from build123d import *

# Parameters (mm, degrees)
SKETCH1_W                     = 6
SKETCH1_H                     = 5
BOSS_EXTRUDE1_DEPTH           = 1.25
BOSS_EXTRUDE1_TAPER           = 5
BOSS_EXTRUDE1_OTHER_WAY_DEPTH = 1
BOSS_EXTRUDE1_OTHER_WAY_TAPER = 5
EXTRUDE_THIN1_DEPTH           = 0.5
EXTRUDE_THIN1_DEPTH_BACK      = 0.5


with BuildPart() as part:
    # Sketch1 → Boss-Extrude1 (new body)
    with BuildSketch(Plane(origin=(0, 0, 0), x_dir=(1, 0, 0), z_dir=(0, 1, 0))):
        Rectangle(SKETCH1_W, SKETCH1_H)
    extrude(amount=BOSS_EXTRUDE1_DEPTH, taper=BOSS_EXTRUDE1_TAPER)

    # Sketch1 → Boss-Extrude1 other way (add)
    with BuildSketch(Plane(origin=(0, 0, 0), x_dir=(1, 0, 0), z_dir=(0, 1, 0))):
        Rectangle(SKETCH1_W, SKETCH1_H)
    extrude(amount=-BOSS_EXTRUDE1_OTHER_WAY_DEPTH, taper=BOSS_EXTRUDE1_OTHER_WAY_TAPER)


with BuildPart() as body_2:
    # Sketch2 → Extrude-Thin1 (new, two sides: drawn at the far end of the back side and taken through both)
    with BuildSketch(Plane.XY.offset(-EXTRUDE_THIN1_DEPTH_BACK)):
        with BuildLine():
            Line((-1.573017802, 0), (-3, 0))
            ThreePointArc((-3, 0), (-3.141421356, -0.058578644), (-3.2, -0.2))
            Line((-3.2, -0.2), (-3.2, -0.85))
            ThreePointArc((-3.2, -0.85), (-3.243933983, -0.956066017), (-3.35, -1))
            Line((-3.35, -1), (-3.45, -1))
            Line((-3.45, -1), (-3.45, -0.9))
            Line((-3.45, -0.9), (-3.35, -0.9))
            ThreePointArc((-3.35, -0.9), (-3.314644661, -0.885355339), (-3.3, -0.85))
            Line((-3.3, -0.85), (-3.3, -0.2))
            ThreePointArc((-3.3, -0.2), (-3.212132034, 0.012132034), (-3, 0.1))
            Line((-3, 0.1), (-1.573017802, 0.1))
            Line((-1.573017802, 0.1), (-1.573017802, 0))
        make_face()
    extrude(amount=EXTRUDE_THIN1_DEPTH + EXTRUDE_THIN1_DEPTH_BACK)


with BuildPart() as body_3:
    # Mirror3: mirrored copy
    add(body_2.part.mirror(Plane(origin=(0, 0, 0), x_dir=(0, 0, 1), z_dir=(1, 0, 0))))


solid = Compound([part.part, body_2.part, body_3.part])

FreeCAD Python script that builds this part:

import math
import FreeCAD as App
import Part
import Sketcher
from FreeCAD import Vector
Q = App.Units.Quantity


def add_polygon(sketch, points):
    """Adds a closed chain of lines whose ends are joined by coincident constraints."""
    first, n = sketch.GeometryCount, len(points)
    for a, b in zip(points, points[1:] + points[:1]):
        sketch.addGeometry(Part.LineSegment(App.Vector(*a, 0), App.Vector(*b, 0)), False)
    for i in range(n):
        sketch.addConstraint(Sketcher.Constraint("Coincident", first + i, 2, first + (i + 1) % n, 1))

doc = App.newDocument("Part")
params = doc.addObject("Spreadsheet::Sheet", "Params")
for row, (alias, value) in enumerate([
    ("sketch1_width", "6 mm"),
    ("sketch1_height", "5 mm"),
    ("pad1_length", "1.25 mm"),
    ("pad1_taper", "-5 deg"),
    ("sketch2_width", "6 mm"),
    ("sketch2_height", "5 mm"),
    ("pad2_length", "1 mm"),
    ("pad2_taper", "-5 deg"),
    ("sketch3_radius", "0.3 mm"),
    ("sketch3_radius2", "0.2 mm"),
    ("sketch3_radius3", "0.05 mm"),
    ("pad3_length", "0.5 mm"),
    ("pad3_length2", "0.5 mm"),
], start=1):
    params.set(f"A{row}", alias)
    params.set(f"B{row}", "=" + value)
    params.setAlias(f"B{row}", alias)

body = doc.addObject("PartDesign::Body", "Body")

sketch1 = body.newObject("Sketcher::SketchObject", "Sketch")
sketch1.AttachmentSupport = (doc.getObject("XZ_Plane"), [""])
sketch1.MapMode = "FlatFace"
add_polygon(sketch1, [(-3, -2.5), (-3, 2.5), (3, 2.5), (3, -2.5)])
sketch1.addConstraint(Sketcher.Constraint("Vertical", 0))
sketch1.addConstraint(Sketcher.Constraint("Horizontal", 1))
sketch1.addConstraint(Sketcher.Constraint("Vertical", 2))
sketch1.addConstraint(Sketcher.Constraint("Horizontal", 3))
sketch1.addConstraint(Sketcher.Constraint("Symmetric", 0, 2, 2, 2, -1, 1))
sketch1.addConstraint(Sketcher.Constraint("DistanceX", 1, 1, 1, 2, Q("6 mm")))
sketch1.addConstraint(Sketcher.Constraint("DistanceY", 0, 1, 0, 2, Q("5 mm")))
sketch1.setExpression("Constraints[9]", "Params.sketch1_width")
sketch1.setExpression("Constraints[10]", "Params.sketch1_height")
pad1 = body.newObject("PartDesign::Pad", "Pad")
pad1.Profile = sketch1
pad1.setExpression("Length", "Params.pad1_length")
pad1.Reversed = True
pad1.setExpression("TaperAngle", "Params.pad1_taper")

sketch2 = body.newObject("Sketcher::SketchObject", "Sketch001")
sketch2.AttachmentSupport = (doc.getObject("XZ_Plane"), [""])
sketch2.MapMode = "FlatFace"
add_polygon(sketch2, [(-3, -2.5), (-3, 2.5), (3, 2.5), (3, -2.5)])
sketch2.addConstraint(Sketcher.Constraint("Vertical", 0))
sketch2.addConstraint(Sketcher.Constraint("Horizontal", 1))
sketch2.addConstraint(Sketcher.Constraint("Vertical", 2))
sketch2.addConstraint(Sketcher.Constraint("Horizontal", 3))
sketch2.addConstraint(Sketcher.Constraint("Symmetric", 0, 2, 2, 2, -1, 1))
sketch2.addConstraint(Sketcher.Constraint("DistanceX", 1, 1, 1, 2, Q("6 mm")))
sketch2.addConstraint(Sketcher.Constraint("DistanceY", 0, 1, 0, 2, Q("5 mm")))
sketch2.setExpression("Constraints[9]", "Params.sketch2_width")
sketch2.setExpression("Constraints[10]", "Params.sketch2_height")
pad2 = body.newObject("PartDesign::Pad", "Pad001")
pad2.Profile = sketch2
pad2.setExpression("Length", "Params.pad2_length")
pad2.setExpression("TaperAngle", "Params.pad2_taper")
body2 = doc.addObject("PartDesign::Body", "Body001")

sketch3 = body2.newObject("Sketcher::SketchObject", "Sketch002")
sketch3.AttachmentSupport = (doc.getObject("XY_Plane001"), [""])
sketch3.MapMode = "FlatFace"
sketch3.addGeometry(Part.LineSegment(Vector(-3, 0, 0), Vector(-1.573018, 0, 0)), False)
sketch3.addGeometry(Part.LineSegment(Vector(-1.573018, 0, 0), Vector(-1.573018, 0.1, 0)), False)
sketch3.addGeometry(Part.LineSegment(Vector(-1.573018, 0.1, 0), Vector(-3, 0.1, 0)), False)
sketch3.addGeometry(Part.ArcOfCircle(Part.Circle(Vector(-3, -0.2, 0), Vector(0, 0, 1), 0.3), math.radians(90), math.radians(180)), False)
sketch3.addGeometry(Part.LineSegment(Vector(-3.3, -0.2, 0), Vector(-3.3, -0.85, 0)), False)
sketch3.addGeometry(Part.ArcOfCircle(Part.Circle(Vector(-3.35, -0.85, 0), Vector(0, 0, 1), 0.05), math.radians(-90), math.radians(0)), False)
sketch3.addGeometry(Part.LineSegment(Vector(-3.35, -0.9, 0), Vector(-3.45, -0.9, 0)), False)
sketch3.addGeometry(Part.LineSegment(Vector(-3.45, -0.9, 0), Vector(-3.45, -1, 0)), False)
sketch3.addGeometry(Part.LineSegment(Vector(-3.45, -1, 0), Vector(-3.35, -1, 0)), False)
sketch3.addGeometry(Part.ArcOfCircle(Part.Circle(Vector(-3.35, -0.85, 0), Vector(0, 0, 1), 0.15), math.radians(-90), math.radians(0)), False)
sketch3.addGeometry(Part.LineSegment(Vector(-3.2, -0.85, 0), Vector(-3.2, -0.2, 0)), False)
sketch3.addGeometry(Part.ArcOfCircle(Part.Circle(Vector(-3, -0.2, 0), Vector(0, 0, 1), 0.2), math.radians(90), math.radians(180)), False)
sketch3.addConstraint(Sketcher.Constraint("Coincident", 0, 2, 1, 1))
sketch3.addConstraint(Sketcher.Constraint("Coincident", 1, 2, 2, 1))
sketch3.addConstraint(Sketcher.Constraint("Tangent", 2, 2, 3, 1))
sketch3.addConstraint(Sketcher.Constraint("Tangent", 3, 2, 4, 1))
sketch3.addConstraint(Sketcher.Constraint("Tangent", 4, 2, 5, 2))
sketch3.addConstraint(Sketcher.Constraint("Tangent", 5, 1, 6, 1))
sketch3.addConstraint(Sketcher.Constraint("Coincident", 6, 2, 7, 1))
sketch3.addConstraint(Sketcher.Constraint("Coincident", 7, 2, 8, 1))
sketch3.addConstraint(Sketcher.Constraint("Tangent", 8, 2, 9, 1))
sketch3.addConstraint(Sketcher.Constraint("Tangent", 9, 2, 10, 1))
sketch3.addConstraint(Sketcher.Constraint("Tangent", 10, 2, 11, 2))
sketch3.addConstraint(Sketcher.Constraint("Tangent", 11, 1, 0, 1))
sketch3.addConstraint(Sketcher.Constraint("Horizontal", 0))
sketch3.addConstraint(Sketcher.Constraint("Vertical", 1))
sketch3.addConstraint(Sketcher.Constraint("Horizontal", 2))
sketch3.addConstraint(Sketcher.Constraint("Vertical", 4))
sketch3.addConstraint(Sketcher.Constraint("Horizontal", 6))
sketch3.addConstraint(Sketcher.Constraint("Vertical", 7))
sketch3.addConstraint(Sketcher.Constraint("Horizontal", 8))
sketch3.addConstraint(Sketcher.Constraint("Vertical", 10))
sketch3.addConstraint(Sketcher.Constraint("Coincident", 9, 3, 5, 3))
sketch3.addConstraint(Sketcher.Constraint("Coincident", 11, 3, 3, 3))
sketch3.addConstraint(Sketcher.Constraint("PointOnObject", 0, 2, -1))
sketch3.addConstraint(Sketcher.Constraint("Equal", 8, 1))
sketch3.addConstraint(Sketcher.Constraint("Radius", 3, Q("0.3 mm")))
sketch3.addConstraint(Sketcher.Constraint("Radius", 11, Q("0.2 mm")))
sketch3.addConstraint(Sketcher.Constraint("Radius", 5, Q("0.05 mm")))
sketch3.addConstraint(Sketcher.Constraint("DistanceX", 3, 3, -1, 1, Q("3 mm")))
sketch3.addConstraint(Sketcher.Constraint("DistanceY", 7, 2, -1, 1, Q("1 mm")))
sketch3.addConstraint(Sketcher.Constraint("DistanceX", 0, 1, 0, 2, Q("1.426982 mm")))
sketch3.setExpression("Constraints[24]", "Params.sketch3_radius")
sketch3.setExpression("Constraints[25]", "Params.sketch3_radius2")
sketch3.setExpression("Constraints[26]", "Params.sketch3_radius3")
pad3 = body2.newObject("PartDesign::Pad", "Pad002")
pad3.Profile = sketch3
pad3.Type = "TwoLengths"
pad3.setExpression("Length", "Params.pad3_length")
pad3.setExpression("Length2", "Params.pad3_length2")
body3 = doc.addObject("PartDesign::Body", "Body002")
doc.recompute()

mirroring = doc.addObject("Part::Mirroring", "Mirroring")
mirroring.Source = body2
mirroring.Base = Vector(0, 0, 0)
mirroring.Normal = Vector(1, 0, 0)
body3.BaseFeature = mirroring
doc.recompute()
mirroring.Visibility = False

doc.recompute()
